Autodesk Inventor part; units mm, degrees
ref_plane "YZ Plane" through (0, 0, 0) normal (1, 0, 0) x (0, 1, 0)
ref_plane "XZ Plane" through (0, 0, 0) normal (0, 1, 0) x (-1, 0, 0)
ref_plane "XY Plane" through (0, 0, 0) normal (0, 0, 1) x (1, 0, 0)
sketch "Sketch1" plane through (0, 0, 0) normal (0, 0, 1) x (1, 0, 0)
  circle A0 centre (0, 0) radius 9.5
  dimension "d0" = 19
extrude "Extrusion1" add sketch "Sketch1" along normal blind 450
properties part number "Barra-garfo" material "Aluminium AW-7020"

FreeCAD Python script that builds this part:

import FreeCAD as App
import Part
import Sketcher
from FreeCAD import Vector

doc = App.newDocument("Part")
body = doc.addObject("PartDesign::Body", "Body")

# Sketch on XY plane
sketch1 = body.newObject("Sketcher::SketchObject", "Sketch")
sketch1.AttachmentSupport = (doc.getObject("XY_Plane"), [""])
sketch1.MapMode = "FlatFace"
sketch1.addGeometry(Part.Circle(Vector(0, 0, 0), Vector(0, 0, 1), 9.5), False)
sketch1.addConstraint([
    Sketcher.Constraint("Coincident", 0, 3, -1, 1),
    Sketcher.Constraint("Diameter", 0, 19.0),
])
pad1 = body.newObject("PartDesign::Pad", "Pad")
pad1.Profile = sketch1
pad1.Length = 450

doc.recompute()
